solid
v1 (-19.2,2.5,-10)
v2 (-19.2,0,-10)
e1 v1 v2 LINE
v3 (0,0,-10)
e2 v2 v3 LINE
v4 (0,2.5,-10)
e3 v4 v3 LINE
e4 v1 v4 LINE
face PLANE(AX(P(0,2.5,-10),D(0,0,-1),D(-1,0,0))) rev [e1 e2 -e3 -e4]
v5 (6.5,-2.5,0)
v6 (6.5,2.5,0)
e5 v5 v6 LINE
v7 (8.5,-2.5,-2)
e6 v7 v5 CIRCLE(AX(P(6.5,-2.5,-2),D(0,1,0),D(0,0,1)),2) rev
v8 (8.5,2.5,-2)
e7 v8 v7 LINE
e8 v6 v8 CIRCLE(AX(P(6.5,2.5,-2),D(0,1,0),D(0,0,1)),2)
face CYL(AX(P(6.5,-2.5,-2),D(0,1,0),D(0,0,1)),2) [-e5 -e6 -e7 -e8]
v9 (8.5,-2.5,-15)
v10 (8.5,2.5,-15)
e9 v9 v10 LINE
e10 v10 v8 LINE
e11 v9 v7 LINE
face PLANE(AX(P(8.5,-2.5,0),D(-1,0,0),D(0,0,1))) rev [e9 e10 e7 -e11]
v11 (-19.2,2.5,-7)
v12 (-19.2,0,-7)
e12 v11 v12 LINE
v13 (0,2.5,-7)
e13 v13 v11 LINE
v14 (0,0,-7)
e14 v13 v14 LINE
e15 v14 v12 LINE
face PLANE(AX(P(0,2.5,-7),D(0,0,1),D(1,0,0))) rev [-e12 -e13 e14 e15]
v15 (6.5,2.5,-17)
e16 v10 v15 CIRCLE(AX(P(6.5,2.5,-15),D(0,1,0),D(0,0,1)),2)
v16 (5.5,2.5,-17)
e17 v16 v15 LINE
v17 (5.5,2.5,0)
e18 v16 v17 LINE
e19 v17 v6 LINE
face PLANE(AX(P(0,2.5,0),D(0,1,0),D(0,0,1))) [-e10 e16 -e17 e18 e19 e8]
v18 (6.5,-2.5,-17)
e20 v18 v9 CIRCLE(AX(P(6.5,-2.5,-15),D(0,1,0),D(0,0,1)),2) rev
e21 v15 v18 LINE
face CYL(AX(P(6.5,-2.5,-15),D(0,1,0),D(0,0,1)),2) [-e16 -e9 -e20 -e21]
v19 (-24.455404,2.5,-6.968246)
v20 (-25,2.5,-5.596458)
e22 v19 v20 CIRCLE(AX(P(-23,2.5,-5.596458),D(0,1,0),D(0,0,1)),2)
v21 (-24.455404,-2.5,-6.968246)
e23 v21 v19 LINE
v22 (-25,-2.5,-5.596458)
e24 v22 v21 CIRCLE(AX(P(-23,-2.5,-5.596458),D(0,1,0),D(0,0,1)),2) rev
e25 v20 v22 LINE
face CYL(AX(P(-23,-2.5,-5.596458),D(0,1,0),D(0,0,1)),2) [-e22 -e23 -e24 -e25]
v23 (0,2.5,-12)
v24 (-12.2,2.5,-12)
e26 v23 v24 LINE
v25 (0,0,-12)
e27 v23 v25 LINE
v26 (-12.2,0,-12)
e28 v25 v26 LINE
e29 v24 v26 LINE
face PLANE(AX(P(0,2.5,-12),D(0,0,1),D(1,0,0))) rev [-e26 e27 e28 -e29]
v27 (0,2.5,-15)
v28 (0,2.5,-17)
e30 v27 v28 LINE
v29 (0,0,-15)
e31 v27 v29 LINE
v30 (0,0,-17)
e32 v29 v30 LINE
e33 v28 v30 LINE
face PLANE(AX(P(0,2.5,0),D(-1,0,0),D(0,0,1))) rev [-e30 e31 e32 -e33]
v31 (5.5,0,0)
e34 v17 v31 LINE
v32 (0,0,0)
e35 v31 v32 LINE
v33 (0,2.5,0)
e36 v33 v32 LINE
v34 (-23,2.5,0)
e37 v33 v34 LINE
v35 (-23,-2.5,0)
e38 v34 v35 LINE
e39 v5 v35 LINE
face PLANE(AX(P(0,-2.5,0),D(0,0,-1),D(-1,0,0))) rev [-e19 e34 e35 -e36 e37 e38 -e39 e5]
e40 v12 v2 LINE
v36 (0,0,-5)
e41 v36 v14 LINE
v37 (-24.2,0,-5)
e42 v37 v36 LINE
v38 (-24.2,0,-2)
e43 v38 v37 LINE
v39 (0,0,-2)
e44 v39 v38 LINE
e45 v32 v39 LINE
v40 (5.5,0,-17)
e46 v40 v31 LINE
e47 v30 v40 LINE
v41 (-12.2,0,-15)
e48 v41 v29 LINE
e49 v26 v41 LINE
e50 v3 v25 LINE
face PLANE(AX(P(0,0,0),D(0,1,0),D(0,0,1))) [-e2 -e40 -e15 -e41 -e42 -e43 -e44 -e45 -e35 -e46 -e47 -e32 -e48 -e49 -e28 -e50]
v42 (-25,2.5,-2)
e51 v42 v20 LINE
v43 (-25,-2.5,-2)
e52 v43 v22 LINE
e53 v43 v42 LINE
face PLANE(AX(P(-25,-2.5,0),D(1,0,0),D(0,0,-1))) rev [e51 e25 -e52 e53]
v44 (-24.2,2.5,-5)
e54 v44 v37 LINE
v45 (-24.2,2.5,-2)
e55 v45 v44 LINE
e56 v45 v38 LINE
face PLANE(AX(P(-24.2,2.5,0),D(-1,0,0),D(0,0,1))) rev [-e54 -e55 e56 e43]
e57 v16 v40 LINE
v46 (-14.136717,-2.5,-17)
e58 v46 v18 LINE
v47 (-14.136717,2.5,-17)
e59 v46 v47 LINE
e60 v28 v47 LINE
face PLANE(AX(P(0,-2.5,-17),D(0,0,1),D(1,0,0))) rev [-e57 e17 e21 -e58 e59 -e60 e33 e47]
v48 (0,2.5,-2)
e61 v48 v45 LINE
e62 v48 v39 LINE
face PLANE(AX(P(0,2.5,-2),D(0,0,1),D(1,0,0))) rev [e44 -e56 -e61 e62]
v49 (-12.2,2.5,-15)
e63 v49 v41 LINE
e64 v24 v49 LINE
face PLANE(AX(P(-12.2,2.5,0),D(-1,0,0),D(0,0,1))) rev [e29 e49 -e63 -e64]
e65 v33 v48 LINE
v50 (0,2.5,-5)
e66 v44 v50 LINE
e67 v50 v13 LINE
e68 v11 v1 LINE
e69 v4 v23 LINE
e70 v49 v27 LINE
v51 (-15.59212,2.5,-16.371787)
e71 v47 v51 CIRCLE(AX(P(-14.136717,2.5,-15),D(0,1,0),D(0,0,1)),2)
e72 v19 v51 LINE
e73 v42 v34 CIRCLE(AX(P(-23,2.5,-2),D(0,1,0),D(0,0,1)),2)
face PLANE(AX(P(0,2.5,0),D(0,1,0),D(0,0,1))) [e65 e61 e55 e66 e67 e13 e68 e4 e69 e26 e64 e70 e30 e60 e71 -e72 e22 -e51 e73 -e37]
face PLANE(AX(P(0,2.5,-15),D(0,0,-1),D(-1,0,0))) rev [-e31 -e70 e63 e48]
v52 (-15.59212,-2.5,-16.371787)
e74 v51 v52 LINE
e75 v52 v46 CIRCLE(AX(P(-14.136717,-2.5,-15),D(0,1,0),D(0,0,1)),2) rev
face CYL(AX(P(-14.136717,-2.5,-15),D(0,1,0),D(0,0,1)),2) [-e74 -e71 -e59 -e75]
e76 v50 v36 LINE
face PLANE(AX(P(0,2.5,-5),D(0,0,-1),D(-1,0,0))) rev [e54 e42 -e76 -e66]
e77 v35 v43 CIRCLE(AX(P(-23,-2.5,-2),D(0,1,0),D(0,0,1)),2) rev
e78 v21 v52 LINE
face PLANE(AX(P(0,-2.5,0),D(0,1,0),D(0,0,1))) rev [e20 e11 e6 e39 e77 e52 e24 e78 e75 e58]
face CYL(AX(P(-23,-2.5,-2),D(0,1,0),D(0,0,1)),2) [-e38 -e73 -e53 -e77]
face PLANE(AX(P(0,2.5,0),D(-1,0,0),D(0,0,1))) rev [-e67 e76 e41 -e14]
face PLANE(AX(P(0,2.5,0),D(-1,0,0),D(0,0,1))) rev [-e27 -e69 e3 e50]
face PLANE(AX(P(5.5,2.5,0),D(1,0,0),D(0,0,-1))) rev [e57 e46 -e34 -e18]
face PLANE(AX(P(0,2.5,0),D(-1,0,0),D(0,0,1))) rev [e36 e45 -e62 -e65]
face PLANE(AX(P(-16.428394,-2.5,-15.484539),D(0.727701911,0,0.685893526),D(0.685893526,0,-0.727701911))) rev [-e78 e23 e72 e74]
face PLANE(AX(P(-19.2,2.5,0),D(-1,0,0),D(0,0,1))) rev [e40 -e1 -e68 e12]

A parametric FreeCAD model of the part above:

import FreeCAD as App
import Part
import Sketcher
from FreeCAD import Vector


def edges_at(feature, points):
    """Names of the edges that pass closest to the given points."""
    edges = feature.Shape.Edges
    near = lambda p: min(range(len(edges)), key=lambda i: edges[i].distToShape(Part.Vertex(*p))[0])
    return sorted({f"Edge{near(p) + 1}" for p in points})

doc = App.newDocument("Part")
params = doc.addObject("Spreadsheet::Sheet", "Params")
for row, (alias, value) in enumerate([
    ("sketch1_height", "17 mm"),
    ("sketch1_width", "33.5 mm"),
    ("sketch1_width2", "23.5 mm"),
    ("pad1_length", "2.5 mm"),
    ("sketch2_width", "15 mm"),
    ("sketch2_width2", "25 mm"),
    ("sketch2_width3", "3 mm"),
    ("sketch2_height", "2 mm"),
    ("sketch2_width4", "24.2 mm"),
    ("pad2_length", "2.5 mm"),
    ("fillet_radius", "2 mm"),
], start=1):
    params.set(f"A{row}", alias)
    params.set(f"B{row}", "=" + value)
    params.setAlias(f"B{row}", alias)

body = doc.addObject("PartDesign::Body", "Body")

sketch1 = doc.addObject("Sketcher::SketchObject", "Sketch")
body.addObject(sketch1)
sketch1.AttachmentSupport = (doc.XZ_Plane, [""])
sketch1.MapMode = "FlatFace"
sketch1.addGeometry([
    Part.LineSegment(Vector(-15, -17, 0), Vector(-25, -6.390454, 0)),
    Part.LineSegment(Vector(-25, -6.390454, 0), Vector(-25, 0, 0)),
    Part.LineSegment(Vector(-25, 0, 0), Vector(8.5, 0, 0)),
    Part.LineSegment(Vector(8.5, 0, 0), Vector(8.5, -17, 0)),
    Part.LineSegment(Vector(8.5, -17, 0), Vector(-15, -17, 0)),
], False)
sketch1.addConstraint([
    Sketcher.Constraint("Coincident", 0, 2, 1, 1),
    Sketcher.Constraint("Coincident", 1, 2, 2, 1),
    Sketcher.Constraint("Coincident", 2, 2, 3, 1),
    Sketcher.Constraint("Coincident", 3, 2, 4, 1),
    Sketcher.Constraint("Coincident", 4, 2, 0, 1),
    Sketcher.Constraint("Vertical", 1),
    Sketcher.Constraint("Horizontal", 2),
    Sketcher.Constraint("Vertical", 3),
    Sketcher.Constraint("Horizontal", 4),
    Sketcher.Constraint("PointOnObject", 1, 2, -1),
    Sketcher.Constraint("DistanceY", 3, 2, 3, 1, 17.0),
    Sketcher.Constraint("DistanceX", 2, 1, 2, 2, 33.5),
    Sketcher.Constraint("DistanceX", 4, 2, 4, 1, 23.5),
    Sketcher.Constraint("DistanceX", 0, 2, -1, 1, 25.0),
    Sketcher.Constraint("DistanceY", 1, 1, 1, 2, 6.390454),
])
sketch1.setExpression("Constraints[10]", "Params.sketch1_height")
sketch1.setExpression("Constraints[11]", "Params.sketch1_width")
sketch1.setExpression("Constraints[12]", "Params.sketch1_width2")
pad1 = doc.addObject("PartDesign::Pad", "Pad")
body.addObject(pad1)
pad1.Profile = sketch1
pad1.setExpression("Length", "Params.pad1_length")

sketch2 = doc.addObject("Sketcher::SketchObject", "Sketch001")
body.addObject(sketch2)
sketch2.AttachmentSupport = (doc.XZ_Plane, [""])
sketch2.MapMode = "FlatFace"
sketch2.addGeometry([
    Part.LineSegment(Vector(0, -15, 0), Vector(0, -17, 0)),
    Part.LineSegment(Vector(0, -17, 0), Vector(-15, -17, 0)),
    Part.LineSegment(Vector(-15, -17, 0), Vector(-25, -6.390454, 0)),
    Part.LineSegment(Vector(-25, -6.390454, 0), Vector(-25, 0, 0)),
    Part.LineSegment(Vector(-25, 0, 0), Vector(0, 0, 0)),
    Part.LineSegment(Vector(0, 0, 0), Vector(0, -2, 0)),
    Part.LineSegment(Vector(0, -2, 0), Vector(-24.2, -2, 0)),
    Part.LineSegment(Vector(-24.2, -2, 0), Vector(-24.2, -5, 0)),
    Part.LineSegment(Vector(-24.2, -5, 0), Vector(0, -5, 0)),
    Part.LineSegment(Vector(0, -5, 0), Vector(0, -7, 0)),
    Part.LineSegment(Vector(0, -7, 0), Vector(-19.2, -7, 0)),
    Part.LineSegment(Vector(-19.2, -7, 0), Vector(-19.2, -10, 0)),
    Part.LineSegment(Vector(-19.2, -10, 0), Vector(0, -10, 0)),
    Part.LineSegment(Vector(0, -10, 0), Vector(0, -12, 0)),
    Part.LineSegment(Vector(0, -12, 0), Vector(-12.2, -12, 0)),
    Part.LineSegment(Vector(-12.2, -12, 0), Vector(-12.2, -15, 0)),
    Part.LineSegment(Vector(-12.2, -15, 0), Vector(0, -15, 0)),
    Part.LineSegment(Vector(5.5, -17, 0), Vector(5.5, 0, 0)),
    Part.LineSegment(Vector(5.5, 0, 0), Vector(8.5, 0, 0)),
    Part.LineSegment(Vector(8.5, 0, 0), Vector(8.5, -17, 0)),
    Part.LineSegment(Vector(8.5, -17, 0), Vector(5.5, -17, 0)),
], False)
sketch2.addConstraint([
    Sketcher.Constraint("Coincident", 0, 2, 1, 1),
    Sketcher.Constraint("Coincident", 1, 2, 2, 1),
    Sketcher.Constraint("Coincident", 2, 2, 3, 1),
    Sketcher.Constraint("Coincident", 3, 2, 4, 1),
    Sketcher.Constraint("Coincident", 4, 2, 5, 1),
    Sketcher.Constraint("Coincident", 5, 2, 6, 1),
    Sketcher.Constraint("Coincident", 6, 2, 7, 1),
    Sketcher.Constraint("Coincident", 7, 2, 8, 1),
    Sketcher.Constraint("Coincident", 8, 2, 9, 1),
    Sketcher.Constraint("Coincident", 9, 2, 10, 1),
    Sketcher.Constraint("Coincident", 10, 2, 11, 1),
    Sketcher.Constraint("Coincident", 11, 2, 12, 1),
    Sketcher.Constraint("Coincident", 12, 2, 13, 1),
    Sketcher.Constraint("Coincident", 13, 2, 14, 1),
    Sketcher.Constraint("Coincident", 14, 2, 15, 1),
    Sketcher.Constraint("Coincident", 15, 2, 16, 1),
    Sketcher.Constraint("Coincident", 16, 2, 0, 1),
    Sketcher.Constraint("Coincident", 17, 2, 18, 1),
    Sketcher.Constraint("Coincident", 18, 2, 19, 1),
    Sketcher.Constraint("Coincident", 19, 2, 20, 1),
    Sketcher.Constraint("Coincident", 20, 2, 17, 1),
    Sketcher.Constraint("Vertical", 0),
    Sketcher.Constraint("Horizontal", 1),
    Sketcher.Constraint("Vertical", 3),
    Sketcher.Constraint("Horizontal", 4),
    Sketcher.Constraint("Vertical", 5),
    Sketcher.Constraint("Horizontal", 6),
    Sketcher.Constraint("Vertical", 7),
    Sketcher.Constraint("Horizontal", 8),
    Sketcher.Constraint("Vertical", 9),
    Sketcher.Constraint("Horizontal", 10),
    Sketcher.Constraint("Vertical", 11),
    Sketcher.Constraint("Horizontal", 12),
    Sketcher.Constraint("Vertical", 13),
    Sketcher.Constraint("Horizontal", 14),
    Sketcher.Constraint("Vertical", 15),
    Sketcher.Constraint("Horizontal", 16),
    Sketcher.Constraint("Vertical", 17),
    Sketcher.Constraint("Horizontal", 18),
    Sketcher.Constraint("Vertical", 19),
    Sketcher.Constraint("Horizontal", 20),
    Sketcher.Constraint("Coincident", 4, 2, -1, 1),
    Sketcher.Constraint("PointOnObject", 0, 2, -2),
    Sketcher.Constraint("PointOnObject", 8, 2, -2),
    Sketcher.Constraint("PointOnObject", 12, 2, -2),
    Sketcher.Constraint("PointOnObject", 17, 2, -1),
    Sketcher.Constraint("Horizontal", 1, 2, 19, 2),
    Sketcher.Constraint("Equal", 0, 5),
    Sketcher.Constraint("Equal", 20, 7),
    Sketcher.Constraint("Equal", 5, 9),
    Sketcher.Constraint("Equal", 7, 11),
    Sketcher.Constraint("Equal", 9, 13),
    Sketcher.Constraint("Equal", 11, 15),
    Sketcher.Constraint("DistanceX", 1, 2, 1, 1, 15.0),
    Sketcher.Constraint("DistanceX", 4, 1, 4, 2, 25.0),
    Sketcher.Constraint("DistanceX", 18, 1, 18, 2, 3.0),
    Sketcher.Constraint("DistanceY", 0, 2, 0, 1, 2.0),
    Sketcher.Constraint("DistanceX", 6, 2, 6, 1, 24.2),
    Sketcher.Constraint("DistanceX", 10, 2, 10, 1, 19.2),
    Sketcher.Constraint("DistanceX", 14, 2, 14, 1, 12.2),
    Sketcher.Constraint("DistanceX", -1, 1, 17, 2, 5.5),
    Sketcher.Constraint("DistanceY", 3, 1, 3, 2, 6.390454),
])
sketch2.setExpression("Constraints[53]", "Params.sketch2_width")
sketch2.setExpression("Constraints[54]", "Params.sketch2_width2")
sketch2.setExpression("Constraints[55]", "Params.sketch2_width3")
sketch2.setExpression("Constraints[56]", "Params.sketch2_height")
sketch2.setExpression("Constraints[57]", "Params.sketch2_width4")
pad2 = doc.addObject("PartDesign::Pad", "Pad001")
body.addObject(pad2)
pad2.Profile = sketch2
pad2.setExpression("Length", "Params.pad2_length")
pad2.Reversed = True
doc.recompute()

fillet = doc.addObject("PartDesign::Fillet", "Fillet")
body.addObject(fillet)
fillet.Base = (pad2, edges_at(pad2, [
    (8.5, 0, -17),
    (8.5, 0, 0),
    (-25, 0, 0),
    (-25, 0, -6.39),
    (-15, 0, -17),
]))
fillet.setExpression("Radius", "Params.fillet_radius")

doc.recompute()
